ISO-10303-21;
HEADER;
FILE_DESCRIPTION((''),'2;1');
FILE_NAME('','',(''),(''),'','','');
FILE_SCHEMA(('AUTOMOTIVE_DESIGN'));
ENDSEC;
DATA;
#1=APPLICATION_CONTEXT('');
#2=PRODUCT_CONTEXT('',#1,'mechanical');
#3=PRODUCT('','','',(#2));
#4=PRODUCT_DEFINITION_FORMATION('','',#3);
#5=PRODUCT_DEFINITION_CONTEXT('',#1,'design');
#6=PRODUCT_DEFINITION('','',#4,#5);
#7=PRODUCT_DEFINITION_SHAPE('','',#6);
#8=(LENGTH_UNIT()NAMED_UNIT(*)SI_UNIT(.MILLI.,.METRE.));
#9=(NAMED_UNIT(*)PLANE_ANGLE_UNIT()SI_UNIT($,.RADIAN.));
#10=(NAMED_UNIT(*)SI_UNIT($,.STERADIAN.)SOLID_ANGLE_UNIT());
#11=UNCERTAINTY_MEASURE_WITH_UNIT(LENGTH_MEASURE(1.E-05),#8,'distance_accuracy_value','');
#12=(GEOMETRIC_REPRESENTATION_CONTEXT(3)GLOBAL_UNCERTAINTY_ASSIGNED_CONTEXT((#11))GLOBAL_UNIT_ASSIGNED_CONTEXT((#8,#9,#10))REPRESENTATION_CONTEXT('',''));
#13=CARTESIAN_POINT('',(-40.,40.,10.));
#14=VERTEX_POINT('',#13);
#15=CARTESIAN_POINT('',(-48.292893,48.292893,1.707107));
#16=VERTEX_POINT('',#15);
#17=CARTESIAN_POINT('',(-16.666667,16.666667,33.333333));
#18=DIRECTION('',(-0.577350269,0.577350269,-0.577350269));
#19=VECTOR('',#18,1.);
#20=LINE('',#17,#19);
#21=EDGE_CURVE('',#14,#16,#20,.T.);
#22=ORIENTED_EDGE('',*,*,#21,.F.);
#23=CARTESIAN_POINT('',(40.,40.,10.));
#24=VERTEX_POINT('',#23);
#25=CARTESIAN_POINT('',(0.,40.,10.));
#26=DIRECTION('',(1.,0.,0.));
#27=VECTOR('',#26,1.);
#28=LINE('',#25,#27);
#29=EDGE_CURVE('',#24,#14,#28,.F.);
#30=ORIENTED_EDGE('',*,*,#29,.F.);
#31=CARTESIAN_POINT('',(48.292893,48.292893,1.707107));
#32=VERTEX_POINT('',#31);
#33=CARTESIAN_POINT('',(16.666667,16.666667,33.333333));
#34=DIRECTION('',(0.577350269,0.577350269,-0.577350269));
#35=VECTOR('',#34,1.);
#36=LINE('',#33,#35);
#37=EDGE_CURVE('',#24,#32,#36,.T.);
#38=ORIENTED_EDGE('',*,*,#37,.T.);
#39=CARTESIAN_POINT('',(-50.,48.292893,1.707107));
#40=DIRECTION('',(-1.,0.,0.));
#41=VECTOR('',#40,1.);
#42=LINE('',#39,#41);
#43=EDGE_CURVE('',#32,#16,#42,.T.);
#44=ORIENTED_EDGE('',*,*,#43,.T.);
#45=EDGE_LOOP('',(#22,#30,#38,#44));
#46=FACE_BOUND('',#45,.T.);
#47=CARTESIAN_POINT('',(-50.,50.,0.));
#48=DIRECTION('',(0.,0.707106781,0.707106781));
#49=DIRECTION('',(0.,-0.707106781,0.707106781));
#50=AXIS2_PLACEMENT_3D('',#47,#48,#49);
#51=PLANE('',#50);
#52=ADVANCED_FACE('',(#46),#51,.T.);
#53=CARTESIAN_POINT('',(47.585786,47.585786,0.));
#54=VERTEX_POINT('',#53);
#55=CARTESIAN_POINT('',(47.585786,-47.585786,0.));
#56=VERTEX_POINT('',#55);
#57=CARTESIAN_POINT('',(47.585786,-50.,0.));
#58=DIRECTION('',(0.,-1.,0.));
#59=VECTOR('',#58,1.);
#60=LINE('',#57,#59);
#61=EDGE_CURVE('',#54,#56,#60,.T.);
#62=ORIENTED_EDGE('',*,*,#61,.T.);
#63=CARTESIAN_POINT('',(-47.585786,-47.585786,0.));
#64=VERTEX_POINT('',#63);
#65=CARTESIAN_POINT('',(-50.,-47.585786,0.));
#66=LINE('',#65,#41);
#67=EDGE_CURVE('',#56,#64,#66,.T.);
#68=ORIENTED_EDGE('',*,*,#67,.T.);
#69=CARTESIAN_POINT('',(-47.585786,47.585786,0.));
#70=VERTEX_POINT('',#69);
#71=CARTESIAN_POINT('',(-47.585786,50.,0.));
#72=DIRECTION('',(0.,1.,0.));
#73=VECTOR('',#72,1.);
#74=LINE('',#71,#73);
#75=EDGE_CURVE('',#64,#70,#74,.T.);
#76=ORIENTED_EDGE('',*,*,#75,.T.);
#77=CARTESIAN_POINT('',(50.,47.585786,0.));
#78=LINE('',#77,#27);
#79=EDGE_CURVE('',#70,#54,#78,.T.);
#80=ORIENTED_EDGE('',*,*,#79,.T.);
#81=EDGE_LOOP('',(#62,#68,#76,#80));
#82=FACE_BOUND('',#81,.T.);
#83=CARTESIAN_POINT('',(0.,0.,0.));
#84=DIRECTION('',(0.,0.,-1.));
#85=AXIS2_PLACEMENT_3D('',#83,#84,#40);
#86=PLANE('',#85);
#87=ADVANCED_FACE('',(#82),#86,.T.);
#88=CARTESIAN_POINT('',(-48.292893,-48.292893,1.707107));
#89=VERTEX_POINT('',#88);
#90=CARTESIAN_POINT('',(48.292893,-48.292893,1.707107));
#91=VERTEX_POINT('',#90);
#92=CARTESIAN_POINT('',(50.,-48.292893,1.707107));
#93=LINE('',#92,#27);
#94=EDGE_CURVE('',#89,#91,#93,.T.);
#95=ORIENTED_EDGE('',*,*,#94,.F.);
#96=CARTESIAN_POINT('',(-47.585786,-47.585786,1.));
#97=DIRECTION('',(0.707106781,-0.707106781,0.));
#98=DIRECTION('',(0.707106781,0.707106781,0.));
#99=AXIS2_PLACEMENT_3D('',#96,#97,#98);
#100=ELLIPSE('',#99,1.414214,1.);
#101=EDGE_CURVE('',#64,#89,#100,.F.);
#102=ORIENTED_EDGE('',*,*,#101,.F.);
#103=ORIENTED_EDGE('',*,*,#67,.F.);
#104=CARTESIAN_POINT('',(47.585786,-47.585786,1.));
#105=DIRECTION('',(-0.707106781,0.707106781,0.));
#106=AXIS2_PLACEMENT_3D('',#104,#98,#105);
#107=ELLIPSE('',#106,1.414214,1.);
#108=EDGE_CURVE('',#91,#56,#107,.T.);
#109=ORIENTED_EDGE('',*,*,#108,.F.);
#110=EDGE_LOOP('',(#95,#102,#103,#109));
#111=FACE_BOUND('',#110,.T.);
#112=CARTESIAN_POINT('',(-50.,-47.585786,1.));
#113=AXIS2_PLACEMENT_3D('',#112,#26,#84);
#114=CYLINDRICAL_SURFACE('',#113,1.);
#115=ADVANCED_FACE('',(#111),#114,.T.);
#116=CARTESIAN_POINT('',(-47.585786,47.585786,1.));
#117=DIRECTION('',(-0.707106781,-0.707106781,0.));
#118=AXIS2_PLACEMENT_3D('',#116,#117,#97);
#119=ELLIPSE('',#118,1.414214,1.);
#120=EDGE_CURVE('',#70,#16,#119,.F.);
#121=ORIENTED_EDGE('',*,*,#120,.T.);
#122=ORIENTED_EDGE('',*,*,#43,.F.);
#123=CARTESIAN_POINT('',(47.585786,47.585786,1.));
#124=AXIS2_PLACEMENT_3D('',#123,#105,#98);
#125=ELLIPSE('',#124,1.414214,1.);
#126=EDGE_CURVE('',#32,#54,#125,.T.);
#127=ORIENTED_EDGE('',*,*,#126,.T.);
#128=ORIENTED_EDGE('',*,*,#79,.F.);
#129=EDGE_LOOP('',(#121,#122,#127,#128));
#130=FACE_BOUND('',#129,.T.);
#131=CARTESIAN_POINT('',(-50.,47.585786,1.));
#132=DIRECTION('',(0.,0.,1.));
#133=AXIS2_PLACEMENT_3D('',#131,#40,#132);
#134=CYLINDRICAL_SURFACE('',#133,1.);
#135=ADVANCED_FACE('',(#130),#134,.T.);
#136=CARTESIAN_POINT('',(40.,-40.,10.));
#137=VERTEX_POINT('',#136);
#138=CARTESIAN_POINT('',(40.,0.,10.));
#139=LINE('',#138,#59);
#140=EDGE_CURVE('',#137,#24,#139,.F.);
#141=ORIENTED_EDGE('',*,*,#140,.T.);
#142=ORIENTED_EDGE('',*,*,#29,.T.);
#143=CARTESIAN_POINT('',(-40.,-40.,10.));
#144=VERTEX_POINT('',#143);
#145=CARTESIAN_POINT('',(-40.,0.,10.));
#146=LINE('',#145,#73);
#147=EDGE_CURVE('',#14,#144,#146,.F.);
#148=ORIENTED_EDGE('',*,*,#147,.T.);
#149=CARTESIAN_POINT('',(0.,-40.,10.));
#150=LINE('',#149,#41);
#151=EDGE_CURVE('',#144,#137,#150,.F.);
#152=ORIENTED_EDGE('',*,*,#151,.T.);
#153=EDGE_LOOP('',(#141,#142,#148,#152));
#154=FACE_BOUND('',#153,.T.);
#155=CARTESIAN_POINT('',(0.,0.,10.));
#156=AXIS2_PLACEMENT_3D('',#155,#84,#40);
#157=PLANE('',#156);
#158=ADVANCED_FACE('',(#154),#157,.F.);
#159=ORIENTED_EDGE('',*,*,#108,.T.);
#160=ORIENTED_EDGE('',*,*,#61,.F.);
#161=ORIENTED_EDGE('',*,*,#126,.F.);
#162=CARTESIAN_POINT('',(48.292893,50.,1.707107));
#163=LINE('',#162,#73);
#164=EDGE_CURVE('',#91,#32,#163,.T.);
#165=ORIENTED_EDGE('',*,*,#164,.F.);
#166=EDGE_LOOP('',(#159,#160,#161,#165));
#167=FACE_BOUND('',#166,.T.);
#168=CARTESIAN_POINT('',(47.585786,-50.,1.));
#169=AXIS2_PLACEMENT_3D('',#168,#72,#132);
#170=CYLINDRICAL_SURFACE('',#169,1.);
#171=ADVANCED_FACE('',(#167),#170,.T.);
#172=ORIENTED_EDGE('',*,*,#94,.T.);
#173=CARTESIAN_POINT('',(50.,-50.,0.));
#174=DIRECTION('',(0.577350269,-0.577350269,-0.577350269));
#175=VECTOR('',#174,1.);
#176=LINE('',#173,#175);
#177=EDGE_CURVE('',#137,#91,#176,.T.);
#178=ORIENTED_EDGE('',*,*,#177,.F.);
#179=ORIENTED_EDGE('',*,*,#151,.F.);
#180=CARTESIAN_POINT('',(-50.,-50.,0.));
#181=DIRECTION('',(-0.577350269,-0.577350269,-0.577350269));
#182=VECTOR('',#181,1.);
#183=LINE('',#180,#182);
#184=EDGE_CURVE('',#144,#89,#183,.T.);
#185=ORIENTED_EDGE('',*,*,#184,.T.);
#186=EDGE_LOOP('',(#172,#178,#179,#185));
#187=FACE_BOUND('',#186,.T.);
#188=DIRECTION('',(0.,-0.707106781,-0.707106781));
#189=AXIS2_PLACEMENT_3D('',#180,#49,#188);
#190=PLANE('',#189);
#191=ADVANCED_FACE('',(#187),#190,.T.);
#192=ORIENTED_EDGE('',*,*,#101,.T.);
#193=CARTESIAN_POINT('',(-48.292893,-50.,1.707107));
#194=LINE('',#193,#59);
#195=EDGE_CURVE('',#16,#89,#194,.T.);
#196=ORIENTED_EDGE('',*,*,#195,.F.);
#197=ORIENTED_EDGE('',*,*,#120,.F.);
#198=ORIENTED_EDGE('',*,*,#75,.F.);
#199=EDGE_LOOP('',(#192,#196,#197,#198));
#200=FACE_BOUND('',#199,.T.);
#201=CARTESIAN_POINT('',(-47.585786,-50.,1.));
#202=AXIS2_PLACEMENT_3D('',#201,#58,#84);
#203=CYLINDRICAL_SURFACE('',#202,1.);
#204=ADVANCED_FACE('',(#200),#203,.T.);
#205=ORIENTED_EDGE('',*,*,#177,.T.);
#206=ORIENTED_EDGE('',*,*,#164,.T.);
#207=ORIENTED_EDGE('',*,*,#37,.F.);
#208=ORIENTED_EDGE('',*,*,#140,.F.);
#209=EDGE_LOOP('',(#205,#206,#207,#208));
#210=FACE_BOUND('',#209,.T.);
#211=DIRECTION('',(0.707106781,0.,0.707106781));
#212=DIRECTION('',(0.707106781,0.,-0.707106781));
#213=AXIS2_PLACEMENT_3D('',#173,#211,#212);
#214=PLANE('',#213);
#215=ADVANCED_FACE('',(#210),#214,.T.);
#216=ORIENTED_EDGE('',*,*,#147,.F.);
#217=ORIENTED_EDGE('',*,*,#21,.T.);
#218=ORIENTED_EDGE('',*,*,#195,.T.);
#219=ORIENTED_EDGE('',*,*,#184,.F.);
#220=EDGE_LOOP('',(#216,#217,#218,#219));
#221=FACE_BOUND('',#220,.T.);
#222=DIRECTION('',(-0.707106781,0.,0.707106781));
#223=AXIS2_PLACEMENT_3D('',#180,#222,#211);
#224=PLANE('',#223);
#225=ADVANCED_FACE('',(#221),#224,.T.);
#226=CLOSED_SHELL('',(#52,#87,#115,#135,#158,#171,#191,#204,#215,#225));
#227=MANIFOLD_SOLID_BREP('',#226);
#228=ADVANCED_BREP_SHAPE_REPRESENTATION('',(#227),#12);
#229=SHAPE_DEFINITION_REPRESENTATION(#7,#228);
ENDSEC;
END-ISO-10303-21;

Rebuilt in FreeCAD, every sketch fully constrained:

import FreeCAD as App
import Part
import Sketcher


def edges_at(feature, points):
    """Names of the edges that pass closest to the given points."""
    edges = feature.Shape.Edges
    near = lambda p: min(range(len(edges)), key=lambda i: edges[i].distToShape(Part.Vertex(*p))[0])
    return sorted({f"Edge{near(p) + 1}" for p in points})


def add_polygon(sketch, points):
    """Adds a closed chain of lines whose ends are joined by coincident constraints."""
    first, n = sketch.GeometryCount, len(points)
    for a, b in zip(points, points[1:] + points[:1]):
        sketch.addGeometry(Part.LineSegment(App.Vector(*a, 0), App.Vector(*b, 0)), False)
    for i in range(n):
        sketch.addConstraint(Sketcher.Constraint("Coincident", first + i, 2, first + (i + 1) % n, 1))

doc = App.newDocument("Part")
params = doc.addObject("Spreadsheet::Sheet", "Params")
for row, (alias, value) in enumerate([
    ("sketch1_width", "100 mm"),
    ("pad1_length", "10 mm"),
    ("pad1_taper", "-45 deg"),
    ("fillet_radius", "1 mm"),
], start=1):
    params.set(f"A{row}", alias)
    params.set(f"B{row}", "=" + value)
    params.setAlias(f"B{row}", alias)

body = doc.addObject("PartDesign::Body", "Body")

sketch1 = body.newObject("Sketcher::SketchObject", "Sketch")
sketch1.AttachmentSupport = (doc.getObject("XY_Plane"), [""])
sketch1.MapMode = "FlatFace"
add_polygon(sketch1, [(-50, 50), (-50, -50), (50, -50), (50, 50)])
sketch1.addConstraint([
    Sketcher.Constraint("Vertical", 0),
    Sketcher.Constraint("Horizontal", 1),
    Sketcher.Constraint("Vertical", 2),
    Sketcher.Constraint("Horizontal", 3),
    Sketcher.Constraint("Symmetric", 0, 2, 2, 2, -1, 1),
    Sketcher.Constraint("Equal", 3, 0),
    Sketcher.Constraint("DistanceX", 1, 1, 1, 2, 100.0),
])
sketch1.setExpression("Constraints[10]", "Params.sketch1_width")
pad1 = body.newObject("PartDesign::Pad", "Pad")
pad1.Profile = sketch1
pad1.setExpression("Length", "Params.pad1_length")
pad1.setExpression("TaperAngle", "Params.pad1_taper")
doc.recompute()

fillet = body.newObject("PartDesign::Fillet", "Fillet")
fillet.Base = (pad1, edges_at(pad1, [
    (0, -50, 0),
    (-50, 0, 0),
    (0, 50, 0),
    (50, 0, 0),
]))
fillet.setExpression("Radius", "Params.fillet_radius")

doc.recompute()
